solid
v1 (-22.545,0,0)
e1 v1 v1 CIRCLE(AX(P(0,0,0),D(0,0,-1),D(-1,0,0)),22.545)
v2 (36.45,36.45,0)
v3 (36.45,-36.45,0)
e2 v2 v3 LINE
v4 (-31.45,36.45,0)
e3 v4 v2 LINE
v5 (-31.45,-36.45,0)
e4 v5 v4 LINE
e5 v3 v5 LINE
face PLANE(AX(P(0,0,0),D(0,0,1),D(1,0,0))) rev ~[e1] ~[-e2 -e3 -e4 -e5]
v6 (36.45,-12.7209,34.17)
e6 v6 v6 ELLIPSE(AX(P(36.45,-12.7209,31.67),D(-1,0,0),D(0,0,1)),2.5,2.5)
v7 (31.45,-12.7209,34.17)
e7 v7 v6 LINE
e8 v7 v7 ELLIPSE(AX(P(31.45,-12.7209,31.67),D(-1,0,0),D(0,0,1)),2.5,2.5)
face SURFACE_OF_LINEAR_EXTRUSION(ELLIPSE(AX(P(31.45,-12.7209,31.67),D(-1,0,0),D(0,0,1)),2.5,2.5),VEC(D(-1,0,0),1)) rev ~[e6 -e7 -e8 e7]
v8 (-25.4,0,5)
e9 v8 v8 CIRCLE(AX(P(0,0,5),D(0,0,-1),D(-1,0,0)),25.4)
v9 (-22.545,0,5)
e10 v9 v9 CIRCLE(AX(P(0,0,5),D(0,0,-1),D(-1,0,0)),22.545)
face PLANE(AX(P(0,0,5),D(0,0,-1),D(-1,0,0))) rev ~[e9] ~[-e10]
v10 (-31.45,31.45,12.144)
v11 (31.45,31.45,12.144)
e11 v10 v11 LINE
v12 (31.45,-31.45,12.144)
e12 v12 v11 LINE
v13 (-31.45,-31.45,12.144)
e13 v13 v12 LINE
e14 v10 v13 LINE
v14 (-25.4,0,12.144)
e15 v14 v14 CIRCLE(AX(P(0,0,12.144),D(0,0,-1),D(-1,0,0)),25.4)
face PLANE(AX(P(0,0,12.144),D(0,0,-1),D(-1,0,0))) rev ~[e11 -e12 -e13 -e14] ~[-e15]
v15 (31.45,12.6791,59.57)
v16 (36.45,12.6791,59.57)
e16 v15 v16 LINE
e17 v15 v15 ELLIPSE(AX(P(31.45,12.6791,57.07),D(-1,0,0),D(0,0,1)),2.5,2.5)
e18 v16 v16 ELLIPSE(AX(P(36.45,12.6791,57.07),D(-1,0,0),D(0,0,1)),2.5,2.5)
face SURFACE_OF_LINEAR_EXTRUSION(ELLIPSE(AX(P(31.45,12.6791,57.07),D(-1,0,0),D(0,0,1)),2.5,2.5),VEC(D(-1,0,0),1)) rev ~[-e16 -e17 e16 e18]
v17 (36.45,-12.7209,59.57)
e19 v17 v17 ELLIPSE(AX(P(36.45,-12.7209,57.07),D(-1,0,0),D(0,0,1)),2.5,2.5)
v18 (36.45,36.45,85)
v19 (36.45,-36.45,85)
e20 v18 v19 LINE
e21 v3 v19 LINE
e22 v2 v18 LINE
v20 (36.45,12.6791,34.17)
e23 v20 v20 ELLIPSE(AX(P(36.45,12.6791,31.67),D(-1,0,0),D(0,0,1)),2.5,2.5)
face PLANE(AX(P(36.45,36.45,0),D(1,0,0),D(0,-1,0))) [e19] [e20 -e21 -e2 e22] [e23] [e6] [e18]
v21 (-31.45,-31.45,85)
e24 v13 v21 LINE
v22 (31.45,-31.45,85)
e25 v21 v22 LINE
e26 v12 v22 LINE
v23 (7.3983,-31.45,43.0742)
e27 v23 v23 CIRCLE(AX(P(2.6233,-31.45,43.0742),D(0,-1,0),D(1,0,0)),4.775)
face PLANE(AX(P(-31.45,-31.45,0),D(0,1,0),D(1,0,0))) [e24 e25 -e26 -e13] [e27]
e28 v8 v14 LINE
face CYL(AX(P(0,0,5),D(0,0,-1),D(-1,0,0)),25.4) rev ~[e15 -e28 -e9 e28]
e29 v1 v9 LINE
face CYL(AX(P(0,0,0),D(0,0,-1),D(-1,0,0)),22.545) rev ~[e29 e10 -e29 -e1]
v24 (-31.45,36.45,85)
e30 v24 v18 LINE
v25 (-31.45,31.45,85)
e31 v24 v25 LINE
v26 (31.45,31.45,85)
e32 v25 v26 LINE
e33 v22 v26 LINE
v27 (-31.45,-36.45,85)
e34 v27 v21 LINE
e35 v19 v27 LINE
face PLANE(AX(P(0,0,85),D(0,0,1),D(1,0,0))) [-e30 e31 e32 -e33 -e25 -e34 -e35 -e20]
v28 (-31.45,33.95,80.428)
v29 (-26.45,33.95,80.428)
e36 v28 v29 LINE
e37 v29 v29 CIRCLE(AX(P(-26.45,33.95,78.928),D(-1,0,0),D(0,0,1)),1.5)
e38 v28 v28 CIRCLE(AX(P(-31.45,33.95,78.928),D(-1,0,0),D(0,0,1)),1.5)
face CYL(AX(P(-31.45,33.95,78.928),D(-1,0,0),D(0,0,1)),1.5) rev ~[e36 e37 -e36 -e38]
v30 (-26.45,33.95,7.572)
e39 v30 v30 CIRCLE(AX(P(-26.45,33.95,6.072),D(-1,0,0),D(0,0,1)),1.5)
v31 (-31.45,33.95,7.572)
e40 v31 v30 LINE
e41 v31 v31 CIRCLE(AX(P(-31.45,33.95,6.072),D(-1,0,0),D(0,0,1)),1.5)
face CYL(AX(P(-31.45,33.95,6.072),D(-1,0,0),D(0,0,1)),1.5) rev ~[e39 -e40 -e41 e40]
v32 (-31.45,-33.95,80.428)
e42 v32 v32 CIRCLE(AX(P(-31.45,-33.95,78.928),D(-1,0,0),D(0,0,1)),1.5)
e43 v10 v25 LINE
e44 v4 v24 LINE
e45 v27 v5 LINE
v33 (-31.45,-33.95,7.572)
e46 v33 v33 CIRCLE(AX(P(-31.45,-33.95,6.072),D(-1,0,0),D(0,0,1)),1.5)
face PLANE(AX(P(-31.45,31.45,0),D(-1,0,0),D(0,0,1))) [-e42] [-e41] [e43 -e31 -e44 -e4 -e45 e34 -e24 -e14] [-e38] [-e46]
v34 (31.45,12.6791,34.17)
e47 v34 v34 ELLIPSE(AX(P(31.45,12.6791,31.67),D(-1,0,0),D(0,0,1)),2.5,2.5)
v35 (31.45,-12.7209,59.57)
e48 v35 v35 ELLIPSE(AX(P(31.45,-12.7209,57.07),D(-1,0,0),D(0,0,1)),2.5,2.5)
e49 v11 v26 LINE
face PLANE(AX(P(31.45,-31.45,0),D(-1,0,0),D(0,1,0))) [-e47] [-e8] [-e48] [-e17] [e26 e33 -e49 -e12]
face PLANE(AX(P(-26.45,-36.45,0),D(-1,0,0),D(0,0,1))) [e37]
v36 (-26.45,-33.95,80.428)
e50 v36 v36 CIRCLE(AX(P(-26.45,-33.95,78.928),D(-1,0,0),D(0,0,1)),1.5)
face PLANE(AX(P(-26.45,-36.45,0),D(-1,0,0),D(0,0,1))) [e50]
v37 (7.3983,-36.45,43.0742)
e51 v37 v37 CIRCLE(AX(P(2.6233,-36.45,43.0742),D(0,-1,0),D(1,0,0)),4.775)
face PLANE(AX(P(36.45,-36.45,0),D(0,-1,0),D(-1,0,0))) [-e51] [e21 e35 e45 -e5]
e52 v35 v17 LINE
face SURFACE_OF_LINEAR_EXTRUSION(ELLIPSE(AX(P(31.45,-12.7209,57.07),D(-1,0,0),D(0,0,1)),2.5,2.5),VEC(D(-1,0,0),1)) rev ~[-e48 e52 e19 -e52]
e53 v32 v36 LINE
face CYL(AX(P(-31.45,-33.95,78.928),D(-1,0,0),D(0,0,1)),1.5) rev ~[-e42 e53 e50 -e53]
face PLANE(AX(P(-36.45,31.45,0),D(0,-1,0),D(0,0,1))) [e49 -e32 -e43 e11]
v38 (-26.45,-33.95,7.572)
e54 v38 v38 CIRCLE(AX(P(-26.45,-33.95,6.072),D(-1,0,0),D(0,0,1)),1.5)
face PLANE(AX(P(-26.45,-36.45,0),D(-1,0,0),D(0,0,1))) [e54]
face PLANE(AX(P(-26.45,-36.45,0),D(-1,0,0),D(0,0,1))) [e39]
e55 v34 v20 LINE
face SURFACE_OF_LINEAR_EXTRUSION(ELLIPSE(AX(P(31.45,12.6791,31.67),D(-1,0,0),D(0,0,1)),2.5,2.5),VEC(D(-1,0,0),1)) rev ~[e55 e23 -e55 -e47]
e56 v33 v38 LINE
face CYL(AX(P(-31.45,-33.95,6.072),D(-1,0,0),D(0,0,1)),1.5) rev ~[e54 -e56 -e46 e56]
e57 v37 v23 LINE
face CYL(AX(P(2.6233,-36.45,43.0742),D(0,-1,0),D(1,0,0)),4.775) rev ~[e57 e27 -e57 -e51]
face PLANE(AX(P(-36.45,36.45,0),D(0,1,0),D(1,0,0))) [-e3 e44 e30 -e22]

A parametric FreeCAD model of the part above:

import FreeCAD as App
import Part
import Sketcher
Q = App.Units.Quantity


def add_polygon(sketch, points):
    """Adds a closed chain of lines whose ends are joined by coincident constraints."""
    first, n = sketch.GeometryCount, len(points)
    for a, b in zip(points, points[1:] + points[:1]):
        sketch.addGeometry(Part.LineSegment(App.Vector(*a, 0), App.Vector(*b, 0)), False)
    for i in range(n):
        sketch.addConstraint(Sketcher.Constraint("Coincident", first + i, 2, first + (i + 1) % n, 1))

doc = App.newDocument("Part")
params = doc.addObject("Spreadsheet::Sheet", "Params")
for row, (alias, value) in enumerate([
    ("sketch1_width", "62.9 mm"),
    ("pad1_length", "85 mm"),
    ("sketch2_width", "62.9 mm"),
    ("pad2_length", "12.144 mm"),
    ("sketch3_height", "85 mm"),
    ("sketch3_width", "67.9 mm"),
    ("pocket1_length", "5 mm"),
    ("sketch4_width", "5 mm"),
    ("sketch4_height", "85 mm"),
    ("pocket2_length", "5 mm"),
    ("sketch5_diameter", "45.09 mm"),
    ("pocket3_length", "5 mm"),
    ("sketch6_diameter", "50.8 mm"),
    ("pocket4_length", "10 mm"),
    ("sketch7_diameter", "25.4 mm"),
    ("pocket5_length", "5 mm"),
    ("pocket6_length", "5 mm"),
    ("sketch9_diameter", "3 mm"),
    ("pocket7_length", "5 mm"),
    ("sketch10_diameter", "9.55 mm"),
    ("pocket8_length", "5 mm"),
], start=1):
    params.set(f"A{row}", alias)
    params.set(f"B{row}", "=" + value)
    params.setAlias(f"B{row}", alias)

body = doc.addObject("PartDesign::Body", "Body")

# Sketch on XY plane
sketch1 = body.newObject("Sketcher::SketchObject", "Sketch")
sketch1.AttachmentSupport = (doc.getObject("XY_Plane"), [""])
sketch1.MapMode = "FlatFace"
add_polygon(sketch1, [(36, 36), (-36, 36), (-36, -36), (36, -36)])  # lines 0-3
add_polygon(sketch1, [(31, -31), (-31, -31), (-31, 31), (31, 31)])  # lines 4-7
sketch1.addConstraint([
    Sketcher.Constraint("Horizontal", 0),
    Sketcher.Constraint("Vertical", 1),
    Sketcher.Constraint("Horizontal", 2),
    Sketcher.Constraint("Vertical", 3),
    Sketcher.Constraint("Horizontal", 4),
    Sketcher.Constraint("Vertical", 5),
    Sketcher.Constraint("Horizontal", 6),
    Sketcher.Constraint("Vertical", 7),
    Sketcher.Constraint("Symmetric", 0, 2, 2, 2, -1, 1),
    Sketcher.Constraint("Symmetric", 4, 2, 6, 2, -1, 1),
    Sketcher.Constraint("Equal", 2, 1),
    Sketcher.Constraint("Equal", 6, 5),
    Sketcher.Constraint("DistanceX", 4, 2, 4, 1, Q("62.9 mm")),
    Sketcher.Constraint("DistanceX", 1, 2, 4, 2, Q("5 mm")),
])
sketch1.setExpression("Constraints[20]", "Params.sketch1_width")
pad1 = body.newObject("PartDesign::Pad", "Pad")
pad1.Profile = sketch1
pad1.setExpression("Length", "Params.pad1_length")

# Sketch on XY plane
sketch2 = body.newObject("Sketcher::SketchObject", "Sketch001")
sketch2.AttachmentSupport = (doc.getObject("XY_Plane"), [""])
sketch2.MapMode = "FlatFace"
add_polygon(sketch2, [(-31, -31), (-31, 31), (31, 31), (31, -31)])  # lines 0-3
sketch2.addConstraint([
    Sketcher.Constraint("Vertical", 0),
    Sketcher.Constraint("Horizontal", 1),
    Sketcher.Constraint("Vertical", 2),
    Sketcher.Constraint("Horizontal", 3),
    Sketcher.Constraint("Symmetric", 0, 2, 2, 2, -1, 1),
    Sketcher.Constraint("Equal", 3, 0),
    Sketcher.Constraint("DistanceX", 1, 1, 1, 2, Q("62.9 mm")),
])
sketch2.setExpression("Constraints[10]", "Params.sketch2_width")
pad2 = body.newObject("PartDesign::Pad", "Pad001")
pad2.Profile = sketch2
pad2.setExpression("Length", "Params.pad2_length")

# Sketch on YZ plane
sketch3 = body.newObject("Sketcher::SketchObject", "Sketch002")
sketch3.AttachmentSupport = (doc.getObject("YZ_Plane"), [""])
sketch3.MapMode = "FlatFace"
sketch3.AttachmentOffset = App.Placement(App.Vector(0, 0, -36.45), App.Rotation())
add_polygon(sketch3, [(-36, 0), (-36, 85), (31, 85), (31, 0)])  # lines 0-3
sketch3.addConstraint([
    Sketcher.Constraint("Vertical", 0),
    Sketcher.Constraint("Horizontal", 1),
    Sketcher.Constraint("Vertical", 2),
    Sketcher.Constraint("Horizontal", 3),
    Sketcher.Constraint("PointOnObject", 2, 2, -1),
    Sketcher.Constraint("DistanceY", 0, 1, 0, 2, Q("85 mm")),
    Sketcher.Constraint("DistanceX", 1, 1, 1, 2, Q("67.9 mm")),
    Sketcher.Constraint("DistanceX", 0, 2, -1, 1, Q("36.45 mm")),
])
sketch3.setExpression("Constraints[9]", "Params.sketch3_height")
sketch3.setExpression("Constraints[10]", "Params.sketch3_width")
pocket1 = body.newObject("PartDesign::Pocket", "Pocket")
pocket1.Profile = sketch3
pocket1.setExpression("Length", "Params.pocket1_length")
pocket1.Reversed = True

# Sketch on YZ plane
sketch4 = body.newObject("Sketcher::SketchObject", "Sketch003")
sketch4.AttachmentSupport = (doc.getObject("YZ_Plane"), [""])
sketch4.MapMode = "FlatFace"
sketch4.AttachmentOffset = App.Placement(App.Vector(0, 0, -36.45), App.Rotation())
add_polygon(sketch4, [(36, 85), (36, 0), (31, 0), (31, 85)])  # lines 0-3
sketch4.addConstraint([
    Sketcher.Constraint("Vertical", 0),
    Sketcher.Constraint("Horizontal", 1),
    Sketcher.Constraint("Vertical", 2),
    Sketcher.Constraint("Horizontal", 3),
    Sketcher.Constraint("PointOnObject", 0, 2, -1),
    Sketcher.Constraint("DistanceX", 1, 2, 1, 1, Q("5 mm")),
    Sketcher.Constraint("DistanceY", 0, 2, 0, 1, Q("85 mm")),
    Sketcher.Constraint("DistanceX", -1, 1, 0, 2, Q("36.45 mm")),
])
sketch4.setExpression("Constraints[9]", "Params.sketch4_width")
sketch4.setExpression("Constraints[10]", "Params.sketch4_height")
pocket2 = body.newObject("PartDesign::Pocket", "Pocket001")
pocket2.Profile = sketch4
pocket2.setExpression("Length", "Params.pocket2_length")
pocket2.Reversed = True

# Sketch on XY plane
sketch5 = body.newObject("Sketcher::SketchObject", "Sketch004")
sketch5.AttachmentSupport = (doc.getObject("XY_Plane"), [""])
sketch5.MapMode = "FlatFace"
sketch5.addGeometry(Part.Circle(App.Vector(0, 0, 0), App.Vector(0, 0, 1), 23), False)
sketch5.addConstraint([
    Sketcher.Constraint("Coincident", 0, 3, -1, 1),
    Sketcher.Constraint("Diameter", 0, Q("45.09 mm")),
])
sketch5.setExpression("Constraints[1]", "Params.sketch5_diameter")
pocket3 = body.newObject("PartDesign::Pocket", "Pocket002")
pocket3.Profile = sketch5
pocket3.setExpression("Length", "Params.pocket3_length")
pocket3.Reversed = True

# Sketch on XY plane
sketch6 = body.newObject("Sketcher::SketchObject", "Sketch005")
sketch6.AttachmentSupport = (doc.getObject("XY_Plane"), [""])
sketch6.MapMode = "FlatFace"
sketch6.AttachmentOffset = App.Placement(App.Vector(0, 0, 5), App.Rotation())
sketch6.addGeometry(Part.Circle(App.Vector(0, 0, 0), App.Vector(0, 0, 1), 25), False)
sketch6.addConstraint([
    Sketcher.Constraint("Coincident", 0, 3, -1, 1),
    Sketcher.Constraint("Diameter", 0, Q("50.8 mm")),
])
sketch6.setExpression("Constraints[1]", "Params.sketch6_diameter")
pocket4 = body.newObject("PartDesign::Pocket", "Pocket003")
pocket4.Profile = sketch6
pocket4.setExpression("Length", "Params.pocket4_length")
pocket4.Reversed = True

# Sketch on XZ plane
sketch7 = body.newObject("Sketcher::SketchObject", "Sketch006")
sketch7.AttachmentSupport = (doc.getObject("XZ_Plane"), [""])
sketch7.MapMode = "FlatFace"
sketch7.AttachmentOffset = App.Placement(App.Vector(0, 0, -36.45), App.Rotation())
sketch7.addGeometry(Part.Circle(App.Vector(3, 43, 0), App.Vector(0, 0, 1), 13), False)
sketch7.addConstraint([
    Sketcher.Constraint("Diameter", 0, Q("25.4 mm")),
    Sketcher.Constraint("DistanceX", -1, 1, 0, 3, Q("2.6233 mm")),
    Sketcher.Constraint("DistanceY", -1, 1, 0, 3, Q("43.0742 mm")),
])
sketch7.setExpression("Constraints[0]", "Params.sketch7_diameter")
pocket5 = body.newObject("PartDesign::Pocket", "Pocket004")
pocket5.Profile = sketch7
pocket5.setExpression("Length", "Params.pocket5_length")

# Sketch on YZ plane
sketch8 = body.newObject("Sketcher::SketchObject", "Sketch007")
sketch8.AttachmentSupport = (doc.getObject("YZ_Plane"), [""])
sketch8.MapMode = "FlatFace"
sketch8.AttachmentOffset = App.Placement(App.Vector(0, 0, 31.45), App.Rotation())
sketch8.addGeometry([
    Part.Ellipse(App.Vector(-12.7209, 34.17, 0), App.Vector(-15.2209, 31.67, 0), App.Vector(-12.7209, 31.67, 0)),
    Part.Ellipse(App.Vector(12.6791, 59.57, 0), App.Vector(10.1791, 57.07, 0), App.Vector(12.6791, 57.07, 0)),
    Part.Ellipse(App.Vector(12.6791, 34.17, 0), App.Vector(10.1791, 31.67, 0), App.Vector(12.6791, 31.67, 0)),
    Part.Ellipse(App.Vector(-12.7209, 59.57, 0), App.Vector(-15.2209, 57.07, 0), App.Vector(-12.7209, 57.07, 0)),
], False)
sketch8.addConstraint([
    Sketcher.Constraint("Block", 0),
    Sketcher.Constraint("Block", 1),
    Sketcher.Constraint("Block", 2),
    Sketcher.Constraint("Block", 3),
])
pocket6 = body.newObject("PartDesign::Pocket", "Pocket005")
pocket6.Profile = sketch8
pocket6.setExpression("Length", "Params.pocket6_length")
pocket6.Reversed = True

# Sketch on YZ plane
sketch9 = body.newObject("Sketcher::SketchObject", "Sketch008")
sketch9.AttachmentSupport = (doc.getObject("YZ_Plane"), [""])
sketch9.MapMode = "FlatFace"
sketch9.AttachmentOffset = App.Placement(App.Vector(0, 0, -31.45), App.Rotation())
sketch9.addGeometry([
    Part.Circle(App.Vector(34, 6.1, 0), App.Vector(0, 0, 1), 1.5),
    Part.Circle(App.Vector(-34, 6.1, 0), App.Vector(0, 0, 1), 1.5),
    Part.Circle(App.Vector(34, 78.9, 0), App.Vector(0, 0, 1), 1.5),
    Part.Circle(App.Vector(-34, 78.9, 0), App.Vector(0, 0, 1), 1.5),
], False)
sketch9.addConstraint([
    Sketcher.Constraint("Equal", 0, 1),
    Sketcher.Constraint("Equal", 1, 2),
    Sketcher.Constraint("Equal", 2, 3),
    Sketcher.Constraint("Symmetric", 0, 3, 1, 3, -2),
    Sketcher.Constraint("Symmetric", 2, 3, 3, 3, -2),
    Sketcher.Constraint("Vertical", 0, 3, 2, 3),
    Sketcher.Constraint("Diameter", 0, Q("3 mm")),
    Sketcher.Constraint("DistanceY", -1, 1, 0, 3, Q("6.072 mm")),
    Sketcher.Constraint("DistanceX", 1, 3, 0, 3, Q("67.9 mm")),
    Sketcher.Constraint("DistanceY", -1, 1, 2, 3, Q("78.928 mm")),
])
sketch9.setExpression("Constraints[6]", "Params.sketch9_diameter")
pocket7 = body.newObject("PartDesign::Pocket", "Pocket006")
pocket7.Profile = sketch9
pocket7.setExpression("Length", "Params.pocket7_length")
pocket7.Reversed = True

# Sketch on XZ plane
sketch10 = body.newObject("Sketcher::SketchObject", "Sketch009")
sketch10.AttachmentSupport = (doc.getObject("XZ_Plane"), [""])
sketch10.MapMode = "FlatFace"
sketch10.AttachmentOffset = App.Placement(App.Vector(0, 0, 36.45), App.Rotation())
sketch10.addGeometry(Part.Circle(App.Vector(2.6, 43.1, 0), App.Vector(0, 0, 1), 4.8), False)
sketch10.addConstraint([
    Sketcher.Constraint("Diameter", 0, Q("9.55 mm")),
    Sketcher.Constraint("DistanceX", -1, 1, 0, 3, Q("2.6233 mm")),
    Sketcher.Constraint("DistanceY", -1, 1, 0, 3, Q("43.0742 mm")),
])
sketch10.setExpression("Constraints[0]", "Params.sketch10_diameter")
pocket8 = body.newObject("PartDesign::Pocket", "Pocket007")
pocket8.Profile = sketch10
pocket8.setExpression("Length", "Params.pocket8_length")

doc.recompute()
